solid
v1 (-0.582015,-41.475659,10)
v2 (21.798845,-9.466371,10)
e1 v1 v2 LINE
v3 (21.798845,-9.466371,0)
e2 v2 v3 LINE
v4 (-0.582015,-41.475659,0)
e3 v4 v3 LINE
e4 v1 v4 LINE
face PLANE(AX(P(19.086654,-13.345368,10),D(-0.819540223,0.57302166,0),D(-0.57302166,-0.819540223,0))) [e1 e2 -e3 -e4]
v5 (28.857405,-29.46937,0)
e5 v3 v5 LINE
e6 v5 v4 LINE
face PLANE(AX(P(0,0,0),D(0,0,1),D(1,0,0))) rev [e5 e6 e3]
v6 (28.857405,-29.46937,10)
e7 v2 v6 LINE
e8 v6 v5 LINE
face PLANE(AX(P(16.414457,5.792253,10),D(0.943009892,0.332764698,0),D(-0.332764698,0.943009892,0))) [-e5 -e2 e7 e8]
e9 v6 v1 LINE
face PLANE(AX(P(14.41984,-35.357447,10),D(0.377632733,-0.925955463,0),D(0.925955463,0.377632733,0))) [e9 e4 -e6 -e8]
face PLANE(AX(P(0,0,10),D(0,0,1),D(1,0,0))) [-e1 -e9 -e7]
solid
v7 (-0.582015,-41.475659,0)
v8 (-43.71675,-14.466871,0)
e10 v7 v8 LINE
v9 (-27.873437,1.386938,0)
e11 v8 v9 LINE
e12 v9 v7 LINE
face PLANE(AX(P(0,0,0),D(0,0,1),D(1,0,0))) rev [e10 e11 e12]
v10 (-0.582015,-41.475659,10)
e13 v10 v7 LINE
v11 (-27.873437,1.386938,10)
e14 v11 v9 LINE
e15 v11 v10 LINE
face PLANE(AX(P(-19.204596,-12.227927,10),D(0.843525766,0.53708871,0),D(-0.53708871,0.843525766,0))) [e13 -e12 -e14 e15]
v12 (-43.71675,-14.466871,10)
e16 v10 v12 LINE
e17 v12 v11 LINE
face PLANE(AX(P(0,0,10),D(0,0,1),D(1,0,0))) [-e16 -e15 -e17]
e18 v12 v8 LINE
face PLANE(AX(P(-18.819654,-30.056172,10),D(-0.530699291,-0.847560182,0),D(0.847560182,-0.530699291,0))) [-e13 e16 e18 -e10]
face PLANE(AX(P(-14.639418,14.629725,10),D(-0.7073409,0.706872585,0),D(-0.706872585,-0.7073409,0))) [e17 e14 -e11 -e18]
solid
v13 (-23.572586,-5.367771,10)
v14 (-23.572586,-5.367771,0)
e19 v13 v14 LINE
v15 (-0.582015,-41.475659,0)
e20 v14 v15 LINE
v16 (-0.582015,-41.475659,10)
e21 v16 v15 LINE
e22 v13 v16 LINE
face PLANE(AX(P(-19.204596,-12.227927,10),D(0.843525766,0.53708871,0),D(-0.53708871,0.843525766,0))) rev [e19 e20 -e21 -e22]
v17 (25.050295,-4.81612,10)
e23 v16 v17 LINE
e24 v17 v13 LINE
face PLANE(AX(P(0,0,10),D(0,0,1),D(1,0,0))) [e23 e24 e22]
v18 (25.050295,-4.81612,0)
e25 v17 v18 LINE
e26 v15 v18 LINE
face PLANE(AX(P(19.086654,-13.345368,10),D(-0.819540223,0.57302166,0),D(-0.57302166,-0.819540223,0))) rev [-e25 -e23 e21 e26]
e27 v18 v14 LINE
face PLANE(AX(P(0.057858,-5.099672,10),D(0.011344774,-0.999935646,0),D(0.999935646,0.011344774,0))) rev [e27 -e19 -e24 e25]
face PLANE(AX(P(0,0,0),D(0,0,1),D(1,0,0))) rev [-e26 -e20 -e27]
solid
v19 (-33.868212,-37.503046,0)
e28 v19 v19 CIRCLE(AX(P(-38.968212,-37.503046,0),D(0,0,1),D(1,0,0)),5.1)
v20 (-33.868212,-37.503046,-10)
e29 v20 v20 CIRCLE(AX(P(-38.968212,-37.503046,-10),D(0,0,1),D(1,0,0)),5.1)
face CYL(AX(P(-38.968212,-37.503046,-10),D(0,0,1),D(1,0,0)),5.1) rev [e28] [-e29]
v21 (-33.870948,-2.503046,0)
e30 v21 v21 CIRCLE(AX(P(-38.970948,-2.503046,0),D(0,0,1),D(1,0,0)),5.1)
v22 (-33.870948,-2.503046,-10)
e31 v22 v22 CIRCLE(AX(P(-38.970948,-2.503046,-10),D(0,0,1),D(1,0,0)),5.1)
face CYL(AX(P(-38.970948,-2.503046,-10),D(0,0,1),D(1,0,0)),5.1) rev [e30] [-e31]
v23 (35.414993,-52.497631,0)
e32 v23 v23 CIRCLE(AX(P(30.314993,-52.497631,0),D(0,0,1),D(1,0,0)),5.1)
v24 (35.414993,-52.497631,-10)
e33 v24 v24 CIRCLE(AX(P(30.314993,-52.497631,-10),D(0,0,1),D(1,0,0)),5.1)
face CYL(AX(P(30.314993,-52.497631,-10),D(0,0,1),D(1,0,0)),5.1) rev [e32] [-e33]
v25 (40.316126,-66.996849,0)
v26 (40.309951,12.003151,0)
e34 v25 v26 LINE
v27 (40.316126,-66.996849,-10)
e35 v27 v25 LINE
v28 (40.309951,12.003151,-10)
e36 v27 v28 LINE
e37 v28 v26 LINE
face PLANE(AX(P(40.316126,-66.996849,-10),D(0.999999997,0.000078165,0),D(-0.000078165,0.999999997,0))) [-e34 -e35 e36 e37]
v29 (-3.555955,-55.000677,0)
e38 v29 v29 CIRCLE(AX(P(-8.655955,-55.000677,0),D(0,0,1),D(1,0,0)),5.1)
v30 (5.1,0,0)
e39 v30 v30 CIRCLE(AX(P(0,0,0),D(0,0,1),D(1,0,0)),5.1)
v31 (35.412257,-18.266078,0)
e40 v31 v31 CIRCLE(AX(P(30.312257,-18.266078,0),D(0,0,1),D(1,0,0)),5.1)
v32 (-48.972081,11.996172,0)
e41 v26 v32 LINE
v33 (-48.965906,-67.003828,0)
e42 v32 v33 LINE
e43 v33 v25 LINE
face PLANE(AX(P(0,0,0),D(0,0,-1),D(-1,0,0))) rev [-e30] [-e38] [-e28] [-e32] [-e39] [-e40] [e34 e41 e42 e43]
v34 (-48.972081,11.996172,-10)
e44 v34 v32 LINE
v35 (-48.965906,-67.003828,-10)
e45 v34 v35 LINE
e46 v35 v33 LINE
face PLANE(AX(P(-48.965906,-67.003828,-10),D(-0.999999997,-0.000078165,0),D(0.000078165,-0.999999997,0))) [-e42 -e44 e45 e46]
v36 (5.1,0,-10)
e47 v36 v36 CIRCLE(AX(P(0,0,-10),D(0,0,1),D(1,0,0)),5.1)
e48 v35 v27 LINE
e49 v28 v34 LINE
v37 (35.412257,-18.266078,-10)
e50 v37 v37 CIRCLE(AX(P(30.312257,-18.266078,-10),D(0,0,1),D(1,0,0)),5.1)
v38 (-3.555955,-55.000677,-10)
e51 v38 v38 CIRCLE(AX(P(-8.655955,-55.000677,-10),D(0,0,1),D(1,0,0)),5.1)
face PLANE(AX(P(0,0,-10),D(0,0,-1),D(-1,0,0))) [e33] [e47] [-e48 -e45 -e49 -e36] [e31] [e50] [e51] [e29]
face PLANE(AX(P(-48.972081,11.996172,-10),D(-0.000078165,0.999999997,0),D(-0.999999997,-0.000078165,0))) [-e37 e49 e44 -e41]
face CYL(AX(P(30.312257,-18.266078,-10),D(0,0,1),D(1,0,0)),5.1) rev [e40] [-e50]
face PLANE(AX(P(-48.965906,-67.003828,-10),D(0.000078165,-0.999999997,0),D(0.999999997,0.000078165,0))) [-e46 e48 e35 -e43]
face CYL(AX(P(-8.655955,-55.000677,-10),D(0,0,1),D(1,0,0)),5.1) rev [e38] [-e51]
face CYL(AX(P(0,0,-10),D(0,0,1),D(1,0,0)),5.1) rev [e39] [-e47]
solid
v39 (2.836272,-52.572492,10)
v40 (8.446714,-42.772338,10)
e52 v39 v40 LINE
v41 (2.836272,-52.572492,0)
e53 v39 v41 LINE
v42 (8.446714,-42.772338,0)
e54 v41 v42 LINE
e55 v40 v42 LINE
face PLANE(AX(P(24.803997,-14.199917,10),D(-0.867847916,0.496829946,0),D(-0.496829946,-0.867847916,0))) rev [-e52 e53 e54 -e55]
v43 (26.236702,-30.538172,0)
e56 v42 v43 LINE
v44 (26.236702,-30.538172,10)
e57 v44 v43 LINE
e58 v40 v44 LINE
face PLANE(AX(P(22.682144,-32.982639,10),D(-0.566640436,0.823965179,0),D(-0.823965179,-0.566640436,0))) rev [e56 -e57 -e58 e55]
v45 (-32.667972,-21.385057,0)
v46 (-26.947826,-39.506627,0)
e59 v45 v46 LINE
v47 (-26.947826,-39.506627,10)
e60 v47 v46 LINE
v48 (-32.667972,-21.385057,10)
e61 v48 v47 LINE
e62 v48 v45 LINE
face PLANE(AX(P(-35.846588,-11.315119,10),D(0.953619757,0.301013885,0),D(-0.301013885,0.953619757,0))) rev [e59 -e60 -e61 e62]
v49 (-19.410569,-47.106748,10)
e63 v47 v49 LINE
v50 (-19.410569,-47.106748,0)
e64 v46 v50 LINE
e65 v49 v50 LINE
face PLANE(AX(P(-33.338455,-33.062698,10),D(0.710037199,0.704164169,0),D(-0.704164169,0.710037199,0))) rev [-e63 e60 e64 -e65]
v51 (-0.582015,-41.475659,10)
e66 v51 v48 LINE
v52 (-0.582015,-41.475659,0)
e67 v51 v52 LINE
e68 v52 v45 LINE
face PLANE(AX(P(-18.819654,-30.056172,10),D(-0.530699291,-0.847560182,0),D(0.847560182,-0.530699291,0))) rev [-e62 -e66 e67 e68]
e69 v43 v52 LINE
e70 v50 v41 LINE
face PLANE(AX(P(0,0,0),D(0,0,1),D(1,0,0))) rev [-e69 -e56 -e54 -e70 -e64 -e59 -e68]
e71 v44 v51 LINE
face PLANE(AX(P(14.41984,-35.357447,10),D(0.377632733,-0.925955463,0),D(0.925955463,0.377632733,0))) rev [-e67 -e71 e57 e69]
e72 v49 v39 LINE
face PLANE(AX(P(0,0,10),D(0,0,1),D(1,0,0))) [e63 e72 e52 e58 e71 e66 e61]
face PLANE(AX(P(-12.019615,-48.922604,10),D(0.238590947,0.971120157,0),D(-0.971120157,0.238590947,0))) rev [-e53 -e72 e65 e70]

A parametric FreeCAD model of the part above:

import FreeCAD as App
import Part
import Sketcher
from FreeCAD import Vector
Q = App.Units.Quantity


def add_polygon(sketch, points):
    """Adds a closed chain of lines whose ends are joined by coincident constraints."""
    first, n = sketch.GeometryCount, len(points)
    for a, b in zip(points, points[1:] + points[:1]):
        sketch.addGeometry(Part.LineSegment(App.Vector(*a, 0), App.Vector(*b, 0)), False)
    for i in range(n):
        sketch.addConstraint(Sketcher.Constraint("Coincident", first + i, 2, first + (i + 1) % n, 1))

doc = App.newDocument("Part")
body = doc.addObject("PartDesign::Body", "Body")

sketch1 = body.newObject("Sketcher::SketchObject", "Sketch")
sketch1.AttachmentSupport = (doc.getObject("XY_Plane"), [""])
sketch1.MapMode = "FlatFace"
add_polygon(sketch1, [(-48.965906, -67.003828), (40.316126, -66.996849), (40.309951, 12.003151), (-48.972081, 11.996172)])
sketch1.addGeometry(Part.Circle(Vector(-8.655955, -55.000677, 0), Vector(0, 0, 1), 5.1), False)
sketch1.addGeometry(Part.Circle(Vector(-38.968212, -37.503046, 0), Vector(0, 0, 1), 5.1), False)
sketch1.addGeometry(Part.Circle(Vector(30.314993, -52.497631, 0), Vector(0, 0, 1), 5.1), False)
sketch1.addGeometry(Part.Circle(Vector(-38.970948, -2.503046, 0), Vector(0, 0, 1), 5.1), False)
sketch1.addGeometry(Part.Circle(Vector(30.312257, -18.266078, 0), Vector(0, 0, 1), 5.1), False)
sketch1.addGeometry(Part.Circle(Vector(0, 0, 0), Vector(0, 0, 1), 5.1), False)
sketch1.addConstraint(Sketcher.Constraint("Coincident", 9, 3, -1, 1))
sketch1.addConstraint(Sketcher.Constraint("Equal", 4, 5))
sketch1.addConstraint(Sketcher.Constraint("Equal", 5, 6))
sketch1.addConstraint(Sketcher.Constraint("Equal", 6, 7))
sketch1.addConstraint(Sketcher.Constraint("Equal", 7, 8))
sketch1.addConstraint(Sketcher.Constraint("Equal", 8, 9))
sketch1.addConstraint(Sketcher.Constraint("Perpendicular", 0, 1))
sketch1.addConstraint(Sketcher.Constraint("Perpendicular", 1, 2))
sketch1.addConstraint(Sketcher.Constraint("Perpendicular", 2, 3))
sketch1.addConstraint(Sketcher.Constraint("Diameter", 4, Q("10.2 mm")))
sketch1.addConstraint(Sketcher.Constraint("Distance", 1, Q("79 mm")))
sketch1.addConstraint(Sketcher.Constraint("DistanceY", 5, 3, 7, 3, Q("35 mm")))
sketch1.addConstraint(Sketcher.Constraint("DistanceY", 4, 3, 8, 3, Q("36.734599 mm")))
sketch1.addConstraint(Sketcher.Constraint("DistanceX", 7, 3, 1, 2, Q("79.280899 mm")))
sketch1.addConstraint(Sketcher.Constraint("DistanceX", 3, 2, 6, 3, Q("79.280899 mm")))
sketch1.addConstraint(Sketcher.Constraint("DistanceX", 5, 3, -1, 1, Q("38.968212 mm")))
sketch1.addConstraint(Sketcher.Constraint("DistanceY", 6, 3, -1, 1, Q("52.497631 mm")))
sketch1.addConstraint(Sketcher.Constraint("DistanceY", 0, 2, -1, 1, Q("66.996849 mm")))
sketch1.addConstraint(Sketcher.Constraint("DistanceX", -1, 1, 1, 2, Q("40.309951 mm")))
sketch1.addConstraint(Sketcher.Constraint("DistanceX", 2, 2, -1, 1, Q("48.972081 mm")))
sketch1.addConstraint(Sketcher.Constraint("DistanceY", 4, 3, 5, 3, Q("17.497631 mm")))
sketch1.addConstraint(Sketcher.Constraint("DistanceX", 7, 3, 6, 3, Q("69.28594 mm")))
sketch1.addConstraint(Sketcher.Constraint("DistanceX", 4, 3, 8, 3, Q("38.968212 mm")))
sketch1.addConstraint(Sketcher.Constraint("DistanceX", 5, 3, 8, 3, Q("69.280469 mm")))
sketch1.addConstraint(Sketcher.Constraint("DistanceY", 0, 2, 8, 3, Q("48.730771 mm")))
pad1 = body.newObject("PartDesign::Pad", "Pad")
pad1.Profile = sketch1
pad1.Length = 10
pad1.Reversed = True
body2 = doc.addObject("PartDesign::Body", "Body001")

sketch2 = body2.newObject("Sketcher::SketchObject", "Sketch001")
sketch2.AttachmentSupport = (doc.getObject("XY_Plane001"), [""])
sketch2.MapMode = "FlatFace"
add_polygon(sketch2, [(-32.667972, -21.385057), (-26.947826, -39.506627), (-19.410569, -47.106748), (2.836272, -52.572492), (8.446714, -42.772338), (26.236702, -30.538172), (-0.582015, -41.475659)])
sketch2.addConstraint(Sketcher.Constraint("Distance", 0, Q("19.002931 mm")))
sketch2.addConstraint(Sketcher.Constraint("Distance", 3, Q("11.292479 mm")))
sketch2.addConstraint(Sketcher.Constraint("Distance", 5, Q("28.963291 mm")))
sketch2.addConstraint(Sketcher.Constraint("DistanceX", 1, 2, -1, 1, Q("19.410569 mm")))
sketch2.addConstraint(Sketcher.Constraint("DistanceX", -1, 1, 2, 2, Q("2.836272 mm")))
sketch2.addConstraint(Sketcher.Constraint("DistanceY", 4, 2, -1, 1, Q("30.538172 mm")))
sketch2.addConstraint(Sketcher.Constraint("DistanceY", 5, 2, -1, 1, Q("41.475659 mm")))
sketch2.addConstraint(Sketcher.Constraint("DistanceX", 6, 2, -1, 1, Q("32.667972 mm")))
sketch2.addConstraint(Sketcher.Constraint("DistanceY", 1, 2, 0, 2, Q("7.600121 mm")))
sketch2.addConstraint(Sketcher.Constraint("DistanceX", 2, 2, 3, 2, Q("5.610442 mm")))
sketch2.addConstraint(Sketcher.Constraint("DistanceY", 1, 2, 3, 2, Q("4.33441 mm")))
sketch2.addConstraint(Sketcher.Constraint("DistanceX", 0, 2, 3, 2, Q("35.39454 mm")))
sketch2.addConstraint(Sketcher.Constraint("DistanceX", 3, 2, 4, 2, Q("17.789988 mm")))
sketch2.addConstraint(Sketcher.Constraint("DistanceY", 2, 2, 4, 2, Q("22.034321 mm")))
pad2 = body2.newObject("PartDesign::Pad", "Pad001")
pad2.Profile = sketch2
pad2.Length = 10
body3 = doc.addObject("PartDesign::Body", "Body002")

sketch3 = body3.newObject("Sketcher::SketchObject", "Sketch002")
sketch3.AttachmentSupport = (doc.getObject("XY_Plane002"), [""])
sketch3.MapMode = "FlatFace"
add_polygon(sketch3, [(-43.71675, -14.466871), (-32.667972, -21.385057), (-0.582015, -41.475659), (-23.572586, -5.367771), (-27.873437, 1.386938)])
sketch3.addConstraint(Sketcher.Constraint("Parallel", 0, 1))
sketch3.addConstraint(Sketcher.Constraint("Parallel", 2, 3))
sketch3.addConstraint(Sketcher.Constraint("DistanceY", 4, 2, 2, 2, Q("9.0991 mm")))
sketch3.addConstraint(Sketcher.Constraint("Distance", 0, Q("13.03598 mm")))
sketch3.addConstraint(Sketcher.Constraint("Distance", 2, Q("42.805909 mm")))
sketch3.addConstraint(Sketcher.Constraint("Distance", 3, Q("8.00771 mm")))
sketch3.addConstraint(Sketcher.Constraint("Distance", 4, Q("22.413252 mm")))
sketch3.addConstraint(Sketcher.Constraint("DistanceX", 0, 2, -1, 1, Q("32.667972 mm")))
sketch3.addConstraint(Sketcher.Constraint("DistanceY", 1, 2, -1, 1, Q("41.475659 mm")))
sketch3.addConstraint(Sketcher.Constraint("DistanceY", 2, 2, -1, 1, Q("5.367771 mm")))
pad3 = body3.newObject("PartDesign::Pad", "Pad002")
pad3.Profile = sketch3
pad3.Length = 10
body4 = doc.addObject("PartDesign::Body", "Body003")

sketch4 = body4.newObject("Sketcher::SketchObject", "Sketch003")
sketch4.AttachmentSupport = (doc.getObject("XY_Plane003"), [""])
sketch4.MapMode = "FlatFace"
add_polygon(sketch4, [(-23.572586, -5.367771), (-0.582015, -41.475659), (21.798845, -9.466371), (25.050295, -4.81612)])
sketch4.addConstraint(Sketcher.Constraint("Parallel", 1, 2))
sketch4.addConstraint(Sketcher.Constraint("DistanceY", 1, 2, 3, 2, Q("4.0986 mm")))
sketch4.addConstraint(Sketcher.Constraint("Distance", 0, Q("42.805909 mm")))
sketch4.addConstraint(Sketcher.Constraint("Distance", 2, Q("5.674219 mm")))
sketch4.addConstraint(Sketcher.Constraint("Distance", 3, Q("48.626011 mm")))
sketch4.addConstraint(Sketcher.Constraint("DistanceY", 0, 2, -1, 1, Q("41.475659 mm")))
sketch4.addConstraint(Sketcher.Constraint("DistanceY", 1, 2, -1, 1, Q("9.466371 mm")))
sketch4.addConstraint(Sketcher.Constraint("DistanceX", 0, 2, -1, 1, Q("0.582015 mm")))
pad4 = body4.newObject("PartDesign::Pad", "Pad003")
pad4.Profile = sketch4
pad4.Length = 10
body5 = doc.addObject("PartDesign::Body", "Body004")

sketch5 = body5.newObject("Sketcher::SketchObject", "Sketch004")
sketch5.AttachmentSupport = (doc.getObject("XY_Plane004"), [""])
sketch5.MapMode = "FlatFace"
add_polygon(sketch5, [(-0.582015, -41.475659), (26.236702, -30.538172), (28.857405, -29.46937), (21.798845, -9.466371)])
sketch5.addConstraint(Sketcher.Constraint("Parallel", 0, 1))
sketch5.addConstraint(Sketcher.Constraint("DistanceY", 1, 2, 2, 2, Q("20.002999 mm")))
sketch5.addConstraint(Sketcher.Constraint("DistanceY", 0, 2, 2, 2, Q("21.071801 mm")))
sketch5.addConstraint(Sketcher.Constraint("Distance", 0, Q("28.963291 mm")))
sketch5.addConstraint(Sketcher.Constraint("Distance", 1, Q("2.830269 mm")))
sketch5.addConstraint(Sketcher.Constraint("DistanceY", 0, 2, -1, 1, Q("30.538172 mm")))
sketch5.addConstraint(Sketcher.Constraint("DistanceX", 2, 2, 1, 2, Q("7.05856 mm")))
sketch5.addConstraint(Sketcher.Constraint("DistanceX", -1, 1, 0, 2, Q("26.236702 mm")))
pad5 = body5.newObject("PartDesign::Pad", "Pad004")
pad5.Profile = sketch5
pad5.Length = 10

doc.recompute()
